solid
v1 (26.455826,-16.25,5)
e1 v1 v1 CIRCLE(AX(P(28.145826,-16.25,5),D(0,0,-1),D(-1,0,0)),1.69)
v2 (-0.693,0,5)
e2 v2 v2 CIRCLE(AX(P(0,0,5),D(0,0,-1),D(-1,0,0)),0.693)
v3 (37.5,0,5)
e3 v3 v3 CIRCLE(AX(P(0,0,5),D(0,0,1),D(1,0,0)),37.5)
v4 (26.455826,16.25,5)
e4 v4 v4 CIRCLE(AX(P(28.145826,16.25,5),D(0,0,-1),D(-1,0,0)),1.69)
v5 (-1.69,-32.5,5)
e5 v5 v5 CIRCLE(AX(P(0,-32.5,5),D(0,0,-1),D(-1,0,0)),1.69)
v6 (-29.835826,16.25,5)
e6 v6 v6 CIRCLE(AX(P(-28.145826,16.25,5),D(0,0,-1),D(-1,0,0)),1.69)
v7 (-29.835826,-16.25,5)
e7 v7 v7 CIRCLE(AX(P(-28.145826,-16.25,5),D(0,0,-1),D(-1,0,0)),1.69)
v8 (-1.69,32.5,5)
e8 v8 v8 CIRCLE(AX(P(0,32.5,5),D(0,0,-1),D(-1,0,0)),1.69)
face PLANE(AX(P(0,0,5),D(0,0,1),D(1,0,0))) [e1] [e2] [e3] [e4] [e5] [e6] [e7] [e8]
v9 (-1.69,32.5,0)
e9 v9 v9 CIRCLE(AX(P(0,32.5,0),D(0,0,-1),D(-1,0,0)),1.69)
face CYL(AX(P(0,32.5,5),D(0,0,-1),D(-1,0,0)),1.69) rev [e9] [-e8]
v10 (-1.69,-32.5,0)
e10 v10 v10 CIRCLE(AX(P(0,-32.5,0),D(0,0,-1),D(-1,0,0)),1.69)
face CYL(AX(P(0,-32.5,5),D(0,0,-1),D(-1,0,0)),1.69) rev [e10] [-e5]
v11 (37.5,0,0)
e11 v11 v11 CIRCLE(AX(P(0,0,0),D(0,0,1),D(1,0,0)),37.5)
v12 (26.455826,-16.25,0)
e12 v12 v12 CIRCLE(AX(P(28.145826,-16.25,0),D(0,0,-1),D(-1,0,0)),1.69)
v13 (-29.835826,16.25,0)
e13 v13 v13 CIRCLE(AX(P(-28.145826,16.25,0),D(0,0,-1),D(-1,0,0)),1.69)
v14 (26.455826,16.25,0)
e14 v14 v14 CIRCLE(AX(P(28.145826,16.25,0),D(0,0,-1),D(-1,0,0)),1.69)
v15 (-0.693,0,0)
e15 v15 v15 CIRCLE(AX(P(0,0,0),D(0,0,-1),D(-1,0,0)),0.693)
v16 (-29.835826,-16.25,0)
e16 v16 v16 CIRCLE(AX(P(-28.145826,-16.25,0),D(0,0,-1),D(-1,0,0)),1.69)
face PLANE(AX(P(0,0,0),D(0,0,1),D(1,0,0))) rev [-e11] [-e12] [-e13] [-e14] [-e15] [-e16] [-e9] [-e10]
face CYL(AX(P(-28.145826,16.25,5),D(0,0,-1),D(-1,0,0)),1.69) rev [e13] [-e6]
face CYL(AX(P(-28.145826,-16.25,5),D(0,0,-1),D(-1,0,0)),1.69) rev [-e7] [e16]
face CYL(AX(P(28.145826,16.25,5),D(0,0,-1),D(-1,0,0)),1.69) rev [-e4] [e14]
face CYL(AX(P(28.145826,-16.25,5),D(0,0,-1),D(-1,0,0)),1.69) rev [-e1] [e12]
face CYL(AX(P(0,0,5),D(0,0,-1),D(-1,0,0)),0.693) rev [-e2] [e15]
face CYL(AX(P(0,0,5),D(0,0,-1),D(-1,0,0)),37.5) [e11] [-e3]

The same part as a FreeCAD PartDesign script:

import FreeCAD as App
import Part
import Sketcher
from FreeCAD import Vector

doc = App.newDocument("Part")
params = doc.addObject("Spreadsheet::Sheet", "Params")
for row, (alias, value) in enumerate([
    ("sketch1_diameter", "75 mm"),
    ("pad1_length", "5 mm"),
    ("sketch3_diameter", "3.38 mm"),
], start=1):
    params.set(f"A{row}", alias)
    params.set(f"B{row}", "=" + value)
    params.setAlias(f"B{row}", alias)

body = doc.addObject("PartDesign::Body", "Body")

sketch1 = doc.addObject("Sketcher::SketchObject", "Sketch")
body.addObject(sketch1)
sketch1.AttachmentSupport = (doc.XY_Plane, [""])
sketch1.MapMode = "FlatFace"
sketch1.addGeometry(Part.Circle(Vector(0, 0, 0), Vector(0, 0, 1), 38), False)
sketch1.addConstraint([
    Sketcher.Constraint("Coincident", 0, 3, -1, 1),
    Sketcher.Constraint("Diameter", 0, 75.0),
])
sketch1.setExpression("Constraints[1]", "Params.sketch1_diameter")
pad1 = doc.addObject("PartDesign::Pad", "Pad")
body.addObject(pad1)
pad1.Profile = sketch1
pad1.setExpression("Length", "Params.pad1_length")

sketch2 = doc.addObject("Sketcher::SketchObject", "Sketch001")
body.addObject(sketch2)
sketch2.AttachmentSupport = (doc.XY_Plane, [""])
sketch2.MapMode = "FlatFace"
sketch2.addGeometry(Part.Circle(Vector(0, 0, 0), Vector(0, 0, 1), 0.7), False)
sketch2.addConstraint([
    Sketcher.Constraint("Coincident", 0, 3, -1, 1),
    Sketcher.Constraint("Diameter", 0, 1.386),
])
pocket1 = doc.addObject("PartDesign::Pocket", "Pocket")
body.addObject(pocket1)
pocket1.Profile = sketch2
pocket1.Type = "ThroughAll"
pocket1.Reversed = True

sketch3 = doc.addObject("Sketcher::SketchObject", "Sketch002")
body.addObject(sketch3)
sketch3.AttachmentSupport = (doc.XY_Plane, [""])
sketch3.MapMode = "FlatFace"
sketch3.addGeometry([
    Part.Circle(Vector(0, 32.5, 0), Vector(0, 0, 1), 1.7),
    Part.Circle(Vector(-28.1, 16.2, 0), Vector(0, 0, 1), 1.7),
    Part.Circle(Vector(-28.1, -16.2, 0), Vector(0, 0, 1), 1.7),
    Part.Circle(Vector(0, -32.5, 0), Vector(0, 0, 1), 1.7),
    Part.Circle(Vector(28.1, -16.2, 0), Vector(0, 0, 1), 1.7),
    Part.Circle(Vector(28.1, 16.2, 0), Vector(0, 0, 1), 1.7),
], False)
sketch3.addConstraint([
    Sketcher.Constraint("Equal", 0, 1),
    Sketcher.Constraint("Equal", 1, 2),
    Sketcher.Constraint("Equal", 2, 3),
    Sketcher.Constraint("Equal", 3, 4),
    Sketcher.Constraint("Equal", 4, 5),
    Sketcher.Constraint("Symmetric", 0, 3, 3, 3, -1, 1),
    Sketcher.Constraint("Symmetric", 1, 3, 4, 3, -1, 1),
    Sketcher.Constraint("Symmetric", 2, 3, 5, 3, -1, 1),
    Sketcher.Constraint("Symmetric", 2, 3, 4, 3, -2),
    Sketcher.Constraint("PointOnObject", 0, 3, -2),
    Sketcher.Constraint("Diameter", 0, 3.38),
    Sketcher.Constraint("DistanceY", 3, 3, 0, 3, 65.0),
    Sketcher.Constraint("DistanceY", 2, 3, 1, 3, 32.5),
    Sketcher.Constraint("DistanceX", 2, 3, 4, 3, 56.291651),
])
sketch3.setExpression("Constraints[10]", "Params.sketch3_diameter")
pocket2 = doc.addObject("PartDesign::Pocket", "Pocket001")
body.addObject(pocket2)
pocket2.Profile = sketch3
pocket2.Type = "ThroughAll"
pocket2.Reversed = True

doc.recompute()
